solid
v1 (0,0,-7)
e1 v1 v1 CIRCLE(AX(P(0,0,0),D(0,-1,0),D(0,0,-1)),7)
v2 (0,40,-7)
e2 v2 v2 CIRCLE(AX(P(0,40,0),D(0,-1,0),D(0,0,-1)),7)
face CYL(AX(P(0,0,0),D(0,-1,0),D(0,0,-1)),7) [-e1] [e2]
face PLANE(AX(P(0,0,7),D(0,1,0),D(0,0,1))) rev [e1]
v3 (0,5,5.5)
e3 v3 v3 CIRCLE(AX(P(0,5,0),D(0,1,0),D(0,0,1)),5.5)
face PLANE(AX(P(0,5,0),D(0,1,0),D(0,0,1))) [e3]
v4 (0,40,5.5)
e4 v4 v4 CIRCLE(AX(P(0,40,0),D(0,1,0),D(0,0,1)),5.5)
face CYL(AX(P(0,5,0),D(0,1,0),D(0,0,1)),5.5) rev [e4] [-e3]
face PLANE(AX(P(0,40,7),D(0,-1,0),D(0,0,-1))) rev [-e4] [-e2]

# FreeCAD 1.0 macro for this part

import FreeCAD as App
import Part
import Sketcher

V = App.Vector
Q = App.Units.Quantity


def add_polygon(sketch, points):
    """Adds a closed chain of lines whose ends are joined by coincident constraints."""
    first, n = sketch.GeometryCount, len(points)
    for a, b in zip(points, points[1:] + points[:1]):
        sketch.addGeometry(Part.LineSegment(App.Vector(*a, 0), App.Vector(*b, 0)), False)
    for i in range(n):
        sketch.addConstraint(Sketcher.Constraint("Coincident", first + i, 2, first + (i + 1) % n, 1))

doc = App.newDocument("Part")
body = doc.addObject("PartDesign::Body", "Body")

# Sketch on YZ plane
sketch1 = doc.addObject("Sketcher::SketchObject", "Sketch")
body.addObject(sketch1)
sketch1.AttachmentSupport = (doc.YZ_Plane, [""])
sketch1.MapMode = "FlatFace"
add_polygon(sketch1, [(40, 7), (0, 7), (0, 0), (40, 0)])  # lines 0-3
sketch1.addConstraint(Sketcher.Constraint("Horizontal", 0))
sketch1.addConstraint(Sketcher.Constraint("Vertical", 1))
sketch1.addConstraint(Sketcher.Constraint("Horizontal", 2))
sketch1.addConstraint(Sketcher.Constraint("Vertical", 3))
sketch1.addConstraint(Sketcher.Constraint("Coincident", 1, 2, -1, 1))
sketch1.addConstraint(Sketcher.Constraint("DistanceX", 0, 2, 0, 1, Q("40 mm")))
sketch1.addConstraint(Sketcher.Constraint("DistanceY", 1, 2, 1, 1, Q("7 mm")))
revolution = doc.addObject("PartDesign::Revolution", "Revolution")
body.addObject(revolution)
revolution.Profile = sketch1
revolution.ReferenceAxis = (sketch1, ["H_Axis"])
revolution.Angle = 360

# Sketch on XZ plane
sketch2 = doc.addObject("Sketcher::SketchObject", "Sketch001")
body.addObject(sketch2)
sketch2.AttachmentSupport = (doc.XZ_Plane, [""])
sketch2.MapMode = "FlatFace"
sketch2.AttachmentOffset = App.Placement(V(0, 0, -40), App.Rotation())
sketch2.addGeometry(Part.Circle(V(0, 0, 0), V(0, 0, 1), 5.5), False)
sketch2.addConstraint(Sketcher.Constraint("Coincident", 0, 3, -1, 1))
sketch2.addConstraint(Sketcher.Constraint("Diameter", 0, Q("11 mm")))
pocket1 = doc.addObject("PartDesign::Pocket", "Pocket")
body.addObject(pocket1)
pocket1.Profile = sketch2
pocket1.Length = 35
pocket1.Reversed = True

doc.recompute()
